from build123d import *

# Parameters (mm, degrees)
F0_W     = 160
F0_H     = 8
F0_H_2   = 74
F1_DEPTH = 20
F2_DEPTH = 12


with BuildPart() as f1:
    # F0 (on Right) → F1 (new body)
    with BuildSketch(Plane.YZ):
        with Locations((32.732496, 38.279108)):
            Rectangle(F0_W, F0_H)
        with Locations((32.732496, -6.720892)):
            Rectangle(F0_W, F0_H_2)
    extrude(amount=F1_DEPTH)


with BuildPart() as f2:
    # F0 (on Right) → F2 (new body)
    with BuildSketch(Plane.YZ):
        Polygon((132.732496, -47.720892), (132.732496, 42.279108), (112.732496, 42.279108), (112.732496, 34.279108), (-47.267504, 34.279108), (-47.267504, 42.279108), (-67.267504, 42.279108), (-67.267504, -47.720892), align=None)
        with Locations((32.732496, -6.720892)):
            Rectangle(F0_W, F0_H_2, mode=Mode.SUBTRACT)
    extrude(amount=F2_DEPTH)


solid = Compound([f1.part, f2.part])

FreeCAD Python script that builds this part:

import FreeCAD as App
import Part
import Sketcher

doc = App.newDocument("Part")
body = doc.addObject("PartDesign::Body", "Body")
body.AllowCompound = True

# Sketch on YZ plane
sketch1 = body.newObject("Sketcher::SketchObject", "Sketch")
sketch1.AttachmentSupport = (doc.getObject("YZ_Plane"), [""])
sketch1.MapMode = "FlatFace"
sketch1.addGeometry([
    Part.LineSegment(App.Vector(-47.267504, 42.279108, 0), App.Vector(-47.267504, 34.279108, 0)),  # 0
    Part.LineSegment(App.Vector(-47.267504, 34.279108, 0), App.Vector(112.732496, 34.279108, 0)),  # 1
    Part.LineSegment(App.Vector(112.732496, 34.279108, 0), App.Vector(112.732496, 42.279108, 0)),  # 2
    Part.LineSegment(App.Vector(112.732496, 42.279108, 0), App.Vector(-47.267504, 42.279108, 0)),  # 3
    Part.LineSegment(App.Vector(-47.267504, 30.279108, 0), App.Vector(-47.267504, -43.720892, 0)),  # 4
    Part.LineSegment(App.Vector(-47.267504, -43.720892, 0), App.Vector(112.732496, -43.720892, 0)),  # 5
    Part.LineSegment(App.Vector(112.732496, -43.720892, 0), App.Vector(112.732496, 30.279108, 0)),  # 6
    Part.LineSegment(App.Vector(112.732496, 30.279108, 0), App.Vector(-47.267504, 30.279108, 0)),  # 7
], False)
sketch1.addConstraint([
    Sketcher.Constraint("Coincident", 0, 2, 1, 1),
    Sketcher.Constraint("Coincident", 1, 2, 2, 1),
    Sketcher.Constraint("Coincident", 2, 2, 3, 1),
    Sketcher.Constraint("Coincident", 3, 2, 0, 1),
    Sketcher.Constraint("Coincident", 4, 2, 5, 1),
    Sketcher.Constraint("Coincident", 5, 2, 6, 1),
    Sketcher.Constraint("Coincident", 6, 2, 7, 1),
    Sketcher.Constraint("Coincident", 7, 2, 4, 1),
    Sketcher.Constraint("Vertical", 0),
    Sketcher.Constraint("Horizontal", 1),
    Sketcher.Constraint("Vertical", 2),
    Sketcher.Constraint("Horizontal", 3),
    Sketcher.Constraint("Vertical", 4),
    Sketcher.Constraint("Horizontal", 5),
    Sketcher.Constraint("Vertical", 6),
    Sketcher.Constraint("Horizontal", 7),
    Sketcher.Constraint("Vertical", 3, 2, 4, 2),
    Sketcher.Constraint("Vertical", 2, 2, 5, 2),
    Sketcher.Constraint("DistanceX", 1, 1, 1, 2, 160.0),
    Sketcher.Constraint("DistanceY", 0, 2, 0, 1, 8.0),
    Sketcher.Constraint("DistanceY", 4, 2, 4, 1, 74.0),
    Sketcher.Constraint("DistanceY", 4, 2, 0, 2, 78.0),
    Sketcher.Constraint("DistanceY", -1, 1, 6, 2, 30.279108),
    Sketcher.Constraint("DistanceX", 0, 2, -1, 1, 47.267504),
])
pad1 = body.newObject("PartDesign::Pad", "Pad")
pad1.Profile = sketch1
pad1.Length = 20
body2 = doc.addObject("PartDesign::Body", "Body001")

# Sketch on YZ plane
sketch2 = body2.newObject("Sketcher::SketchObject", "Sketch001")
sketch2.AttachmentSupport = (doc.getObject("YZ_Plane001"), [""])
sketch2.MapMode = "FlatFace"
sketch2.addGeometry([
    Part.LineSegment(App.Vector(132.732496, -47.720892, 0), App.Vector(132.732496, 42.279108, 0)),  # 0
    Part.LineSegment(App.Vector(132.732496, 42.279108, 0), App.Vector(112.732496, 42.279108, 0)),  # 1
    Part.LineSegment(App.Vector(112.732496, 42.279108, 0), App.Vector(112.732496, 34.279108, 0)),  # 2
    Part.LineSegment(App.Vector(112.732496, 34.279108, 0), App.Vector(-47.267504, 34.279108, 0)),  # 3
    Part.LineSegment(App.Vector(-47.267504, 34.279108, 0), App.Vector(-47.267504, 42.279108, 0)),  # 4
    Part.LineSegment(App.Vector(-47.267504, 42.279108, 0), App.Vector(-67.267504, 42.279108, 0)),  # 5
    Part.LineSegment(App.Vector(-67.267504, 42.279108, 0), App.Vector(-67.267504, -47.720892, 0)),  # 6
    Part.LineSegment(App.Vector(-67.267504, -47.720892, 0), App.Vector(132.732496, -47.720892, 0)),  # 7
    Part.LineSegment(App.Vector(112.732496, -43.720892, 0), App.Vector(-47.267504, -43.720892, 0)),  # 8
    Part.LineSegment(App.Vector(-47.267504, -43.720892, 0), App.Vector(-47.267504, 30.279108, 0)),  # 9
    Part.LineSegment(App.Vector(-47.267504, 30.279108, 0), App.Vector(112.732496, 30.279108, 0)),  # 10
    Part.LineSegment(App.Vector(112.732496, 30.279108, 0), App.Vector(112.732496, -43.720892, 0)),  # 11
], False)
sketch2.addConstraint([
    Sketcher.Constraint("Coincident", 0, 2, 1, 1),
    Sketcher.Constraint("Coincident", 1, 2, 2, 1),
    Sketcher.Constraint("Coincident", 2, 2, 3, 1),
    Sketcher.Constraint("Coincident", 3, 2, 4, 1),
    Sketcher.Constraint("Coincident", 4, 2, 5, 1),
    Sketcher.Constraint("Coincident", 5, 2, 6, 1),
    Sketcher.Constraint("Coincident", 6, 2, 7, 1),
    Sketcher.Constraint("Coincident", 7, 2, 0, 1),
    Sketcher.Constraint("Coincident", 8, 2, 9, 1),
    Sketcher.Constraint("Coincident", 9, 2, 10, 1),
    Sketcher.Constraint("Coincident", 10, 2, 11, 1),
    Sketcher.Constraint("Coincident", 11, 2, 8, 1),
    Sketcher.Constraint("Vertical", 0),
    Sketcher.Constraint("Horizontal", 1),
    Sketcher.Constraint("Vertical", 2),
    Sketcher.Constraint("Horizontal", 3),
    Sketcher.Constraint("Vertical", 4),
    Sketcher.Constraint("Horizontal", 5),
    Sketcher.Constraint("Vertical", 6),
    Sketcher.Constraint("Horizontal", 7),
    Sketcher.Constraint("Horizontal", 8),
    Sketcher.Constraint("Vertical", 9),
    Sketcher.Constraint("Horizontal", 10),
    Sketcher.Constraint("Vertical", 11),
    Sketcher.Constraint("Horizontal", 1, 2, 4, 2),
    Sketcher.Constraint("Vertical", 4, 2, 8, 2),
    Sketcher.Constraint("Vertical", 2, 2, 10, 2),
    Sketcher.Constraint("Equal", 1, 5),
    Sketcher.Constraint("DistanceX", 1, 2, 1, 1, 20.0),
    Sketcher.Constraint("DistanceX", 3, 2, 3, 1, 160.0),
    Sketcher.Constraint("DistanceY", 0, 1, 0, 2, 90.0),
    Sketcher.Constraint("DistanceY", 2, 2, 2, 1, 8.0),
    Sketcher.Constraint("DistanceY", 9, 1, 9, 2, 74.0),
    Sketcher.Constraint("DistanceY", 6, 2, 8, 2, 4.0),
    Sketcher.Constraint("DistanceY", -1, 1, 9, 2, 30.279108),
    Sketcher.Constraint("DistanceX", -1, 1, 0, 2, 132.732496),
])
pad2 = body2.newObject("PartDesign::Pad", "Pad001")
pad2.Profile = sketch2
pad2.Length = 12

doc.recompute()
